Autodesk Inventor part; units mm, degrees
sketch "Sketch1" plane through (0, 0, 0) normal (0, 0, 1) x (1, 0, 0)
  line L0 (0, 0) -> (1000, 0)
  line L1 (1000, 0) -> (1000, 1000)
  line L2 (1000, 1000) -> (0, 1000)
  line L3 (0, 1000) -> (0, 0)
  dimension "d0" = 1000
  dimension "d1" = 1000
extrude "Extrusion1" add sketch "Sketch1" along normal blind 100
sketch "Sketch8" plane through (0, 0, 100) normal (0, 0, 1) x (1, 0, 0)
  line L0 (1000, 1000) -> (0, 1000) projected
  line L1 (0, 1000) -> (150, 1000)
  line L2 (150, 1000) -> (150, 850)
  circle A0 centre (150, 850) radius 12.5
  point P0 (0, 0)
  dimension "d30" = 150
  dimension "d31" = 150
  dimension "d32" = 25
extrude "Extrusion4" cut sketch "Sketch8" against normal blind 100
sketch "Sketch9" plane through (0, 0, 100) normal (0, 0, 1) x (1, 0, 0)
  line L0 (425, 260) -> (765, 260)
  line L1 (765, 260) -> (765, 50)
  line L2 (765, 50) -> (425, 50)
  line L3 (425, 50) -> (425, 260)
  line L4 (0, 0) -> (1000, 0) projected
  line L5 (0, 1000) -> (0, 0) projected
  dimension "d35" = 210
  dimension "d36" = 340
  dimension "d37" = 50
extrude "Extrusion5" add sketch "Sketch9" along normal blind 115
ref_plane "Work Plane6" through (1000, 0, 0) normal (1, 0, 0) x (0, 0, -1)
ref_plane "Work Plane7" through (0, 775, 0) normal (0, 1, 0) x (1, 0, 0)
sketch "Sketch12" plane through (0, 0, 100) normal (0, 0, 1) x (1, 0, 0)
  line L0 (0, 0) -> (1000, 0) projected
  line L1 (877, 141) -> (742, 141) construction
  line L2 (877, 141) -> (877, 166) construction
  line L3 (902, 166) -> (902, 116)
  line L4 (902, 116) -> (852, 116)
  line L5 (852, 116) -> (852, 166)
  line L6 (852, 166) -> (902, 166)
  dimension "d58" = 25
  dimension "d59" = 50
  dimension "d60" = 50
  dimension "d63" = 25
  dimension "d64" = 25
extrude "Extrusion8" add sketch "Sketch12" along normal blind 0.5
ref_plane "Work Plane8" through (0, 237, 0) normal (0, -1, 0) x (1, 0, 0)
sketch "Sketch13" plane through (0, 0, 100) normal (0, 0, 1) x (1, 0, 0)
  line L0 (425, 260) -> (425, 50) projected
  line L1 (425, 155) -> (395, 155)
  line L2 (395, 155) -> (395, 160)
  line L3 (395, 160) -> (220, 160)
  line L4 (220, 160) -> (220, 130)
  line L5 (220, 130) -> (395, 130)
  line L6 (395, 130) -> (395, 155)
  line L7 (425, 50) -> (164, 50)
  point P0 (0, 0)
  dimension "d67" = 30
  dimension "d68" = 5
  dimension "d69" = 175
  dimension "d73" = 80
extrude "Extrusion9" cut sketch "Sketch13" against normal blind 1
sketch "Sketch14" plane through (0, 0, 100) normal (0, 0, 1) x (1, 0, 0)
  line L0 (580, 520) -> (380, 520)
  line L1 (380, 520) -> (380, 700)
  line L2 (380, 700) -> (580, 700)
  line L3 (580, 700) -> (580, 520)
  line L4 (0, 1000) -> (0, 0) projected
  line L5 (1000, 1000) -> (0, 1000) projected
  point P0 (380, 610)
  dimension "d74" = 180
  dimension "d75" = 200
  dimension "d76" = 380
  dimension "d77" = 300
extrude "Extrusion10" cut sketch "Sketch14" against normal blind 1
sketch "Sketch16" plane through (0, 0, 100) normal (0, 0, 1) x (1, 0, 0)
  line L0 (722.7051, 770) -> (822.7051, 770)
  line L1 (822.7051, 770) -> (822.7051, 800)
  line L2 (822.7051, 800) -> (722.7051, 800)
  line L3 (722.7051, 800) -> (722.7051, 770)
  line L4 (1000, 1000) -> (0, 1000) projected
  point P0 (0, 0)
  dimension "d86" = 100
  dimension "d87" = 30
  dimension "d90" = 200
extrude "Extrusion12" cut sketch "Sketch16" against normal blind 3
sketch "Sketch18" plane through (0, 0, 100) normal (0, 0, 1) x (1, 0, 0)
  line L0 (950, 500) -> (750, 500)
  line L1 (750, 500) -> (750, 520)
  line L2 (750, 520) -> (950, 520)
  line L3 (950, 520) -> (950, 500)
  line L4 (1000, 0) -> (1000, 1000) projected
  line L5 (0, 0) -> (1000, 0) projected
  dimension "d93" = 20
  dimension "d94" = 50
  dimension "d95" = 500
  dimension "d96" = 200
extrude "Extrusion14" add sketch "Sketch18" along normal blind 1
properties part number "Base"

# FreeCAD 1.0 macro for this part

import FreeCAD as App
import Part
import Sketcher
from FreeCAD import Vector
Q = App.Units.Quantity


def add_polygon(sketch, points):
    """Adds a closed chain of lines whose ends are joined by coincident constraints."""
    first, n = sketch.GeometryCount, len(points)
    for a, b in zip(points, points[1:] + points[:1]):
        sketch.addGeometry(Part.LineSegment(App.Vector(*a, 0), App.Vector(*b, 0)), False)
    for i in range(n):
        sketch.addConstraint(Sketcher.Constraint("Coincident", first + i, 2, first + (i + 1) % n, 1))

doc = App.newDocument("Part")
body = doc.addObject("PartDesign::Body", "Body")

sketch1 = body.newObject("Sketcher::SketchObject", "Sketch")
sketch1.AttachmentSupport = (doc.getObject("XY_Plane"), [""])
sketch1.MapMode = "FlatFace"
add_polygon(sketch1, [(0, 1000), (0, 0), (1000, 0), (1000, 1000)])
sketch1.addConstraint(Sketcher.Constraint("Vertical", 0))
sketch1.addConstraint(Sketcher.Constraint("Horizontal", 1))
sketch1.addConstraint(Sketcher.Constraint("Vertical", 2))
sketch1.addConstraint(Sketcher.Constraint("Horizontal", 3))
sketch1.addConstraint(Sketcher.Constraint("Coincident", 0, 2, -1, 1))
sketch1.addConstraint(Sketcher.Constraint("Equal", 3, 0))
sketch1.addConstraint(Sketcher.Constraint("DistanceX", 1, 1, 1, 2, Q("1000 mm")))
pad1 = body.newObject("PartDesign::Pad", "Pad")
pad1.Profile = sketch1
pad1.Length = 100

sketch2 = body.newObject("Sketcher::SketchObject", "Sketch001")
sketch2.AttachmentSupport = (doc.getObject("XY_Plane"), [""])
sketch2.MapMode = "FlatFace"
sketch2.AttachmentOffset = App.Placement(Vector(0, 0, 100), App.Rotation())
sketch2.addGeometry(Part.Circle(Vector(150, 850, 0), Vector(0, 0, 1), 12), False)
sketch2.addConstraint(Sketcher.Constraint("Diameter", 0, Q("25 mm")))
sketch2.addConstraint(Sketcher.Constraint("DistanceX", -1, 1, 0, 3, Q("150 mm")))
sketch2.addConstraint(Sketcher.Constraint("DistanceY", -1, 1, 0, 3, Q("850 mm")))
pocket1 = body.newObject("PartDesign::Pocket", "Pocket")
pocket1.Profile = sketch2
pocket1.Length = 100

sketch3 = body.newObject("Sketcher::SketchObject", "Sketch002")
sketch3.AttachmentSupport = (doc.getObject("XY_Plane"), [""])
sketch3.MapMode = "FlatFace"
sketch3.AttachmentOffset = App.Placement(Vector(0, 0, 100), App.Rotation())
add_polygon(sketch3, [(765, 260), (425, 260), (425, 50), (765, 50)])
sketch3.addConstraint(Sketcher.Constraint("Horizontal", 0))
sketch3.addConstraint(Sketcher.Constraint("Vertical", 1))
sketch3.addConstraint(Sketcher.Constraint("Horizontal", 2))
sketch3.addConstraint(Sketcher.Constraint("Vertical", 3))
sketch3.addConstraint(Sketcher.Constraint("DistanceX", 0, 2, 0, 1, Q("340 mm")))
sketch3.addConstraint(Sketcher.Constraint("DistanceY", 1, 2, 1, 1, Q("210 mm")))
sketch3.addConstraint(Sketcher.Constraint("DistanceY", -1, 1, 1, 2, Q("50 mm")))
sketch3.addConstraint(Sketcher.Constraint("DistanceX", -1, 1, 0, 2, Q("425 mm")))
pad2 = body.newObject("PartDesign::Pad", "Pad001")
pad2.Profile = sketch3
pad2.Length = 115

sketch4 = body.newObject("Sketcher::SketchObject", "Sketch003")
sketch4.AttachmentSupport = (doc.getObject("XY_Plane"), [""])
sketch4.MapMode = "FlatFace"
sketch4.AttachmentOffset = App.Placement(Vector(0, 0, 100), App.Rotation())
add_polygon(sketch4, [(902, 116), (902, 166), (852, 166), (852, 116)])
sketch4.addConstraint(Sketcher.Constraint("Vertical", 0))
sketch4.addConstraint(Sketcher.Constraint("Horizontal", 1))
sketch4.addConstraint(Sketcher.Constraint("Vertical", 2))
sketch4.addConstraint(Sketcher.Constraint("Horizontal", 3))
sketch4.addConstraint(Sketcher.Constraint("Equal", 3, 0))
sketch4.addConstraint(Sketcher.Constraint("DistanceX", 1, 2, 1, 1, Q("50 mm")))
sketch4.addConstraint(Sketcher.Constraint("DistanceX", -1, 1, 0, 2, Q("902 mm")))
sketch4.addConstraint(Sketcher.Constraint("DistanceY", -1, 1, 0, 2, Q("166 mm")))
pad3 = body.newObject("PartDesign::Pad", "Pad002")
pad3.Profile = sketch4
pad3.Length = 0.5

sketch5 = body.newObject("Sketcher::SketchObject", "Sketch004")
sketch5.AttachmentSupport = (doc.getObject("XY_Plane"), [""])
sketch5.MapMode = "FlatFace"
sketch5.AttachmentOffset = App.Placement(Vector(0, 0, 100), App.Rotation())
add_polygon(sketch5, [(395, 130), (395, 160), (220, 160), (220, 130)])
sketch5.addConstraint(Sketcher.Constraint("Vertical", 0))
sketch5.addConstraint(Sketcher.Constraint("Horizontal", 1))
sketch5.addConstraint(Sketcher.Constraint("Vertical", 2))
sketch5.addConstraint(Sketcher.Constraint("Horizontal", 3))
sketch5.addConstraint(Sketcher.Constraint("DistanceX", 1, 2, 1, 1, Q("175 mm")))
sketch5.addConstraint(Sketcher.Constraint("DistanceY", 0, 1, 0, 2, Q("30 mm")))
sketch5.addConstraint(Sketcher.Constraint("DistanceX", -1, 1, 0, 2, Q("395 mm")))
sketch5.addConstraint(Sketcher.Constraint("DistanceY", -1, 1, 0, 2, Q("160 mm")))
pocket2 = body.newObject("PartDesign::Pocket", "Pocket001")
pocket2.Profile = sketch5
pocket2.Length = 1

sketch6 = body.newObject("Sketcher::SketchObject", "Sketch005")
sketch6.AttachmentSupport = (doc.getObject("XY_Plane"), [""])
sketch6.MapMode = "FlatFace"
sketch6.AttachmentOffset = App.Placement(Vector(0, 0, 100), App.Rotation())
add_polygon(sketch6, [(380, 520), (580, 520), (580, 700), (380, 700)])
sketch6.addConstraint(Sketcher.Constraint("Horizontal", 0))
sketch6.addConstraint(Sketcher.Constraint("Vertical", 1))
sketch6.addConstraint(Sketcher.Constraint("Horizontal", 2))
sketch6.addConstraint(Sketcher.Constraint("Vertical", 3))
sketch6.addConstraint(Sketcher.Constraint("DistanceX", 0, 1, 0, 2, Q("200 mm")))
sketch6.addConstraint(Sketcher.Constraint("DistanceY", 1, 1, 1, 2, Q("180 mm")))
sketch6.addConstraint(Sketcher.Constraint("DistanceX", -1, 1, 2, 2, Q("380 mm")))
sketch6.addConstraint(Sketcher.Constraint("DistanceY", -1, 1, 0, 2, Q("520 mm")))
pocket3 = body.newObject("PartDesign::Pocket", "Pocket002")
pocket3.Profile = sketch6
pocket3.Length = 1

sketch7 = body.newObject("Sketcher::SketchObject", "Sketch006")
sketch7.AttachmentSupport = (doc.getObject("XY_Plane"), [""])
sketch7.MapMode = "FlatFace"
sketch7.AttachmentOffset = App.Placement(Vector(0, 0, 100), App.Rotation())
add_polygon(sketch7, [(723, 800), (723, 770), (823, 770), (823, 800)])
sketch7.addConstraint(Sketcher.Constraint("Vertical", 0))
sketch7.addConstraint(Sketcher.Constraint("Horizontal", 1))
sketch7.addConstraint(Sketcher.Constraint("Vertical", 2))
sketch7.addConstraint(Sketcher.Constraint("Horizontal", 3))
sketch7.addConstraint(Sketcher.Constraint("DistanceX", 1, 1, 1, 2, Q("100 mm")))
sketch7.addConstraint(Sketcher.Constraint("DistanceY", 0, 2, 0, 1, Q("30 mm")))
sketch7.addConstraint(Sketcher.Constraint("DistanceY", -1, 1, 0, 2, Q("770 mm")))
sketch7.addConstraint(Sketcher.Constraint("DistanceX", -1, 1, 0, 2, Q("722.705 mm")))
pocket4 = body.newObject("PartDesign::Pocket", "Pocket003")
pocket4.Profile = sketch7
pocket4.Length = 3

sketch8 = body.newObject("Sketcher::SketchObject", "Sketch007")
sketch8.AttachmentSupport = (doc.getObject("XY_Plane"), [""])
sketch8.MapMode = "FlatFace"
sketch8.AttachmentOffset = App.Placement(Vector(0, 0, 100), App.Rotation())
add_polygon(sketch8, [(750, 500), (950, 500), (950, 520), (750, 520)])
sketch8.addConstraint(Sketcher.Constraint("Horizontal", 0))
sketch8.addConstraint(Sketcher.Constraint("Vertical", 1))
sketch8.addConstraint(Sketcher.Constraint("Horizontal", 2))
sketch8.addConstraint(Sketcher.Constraint("Vertical", 3))
sketch8.addConstraint(Sketcher.Constraint("DistanceX", 0, 1, 0, 2, Q("200 mm")))
sketch8.addConstraint(Sketcher.Constraint("DistanceY", 1, 1, 1, 2, Q("20 mm")))
sketch8.addConstraint(Sketcher.Constraint("DistanceY", -1, 1, 0, 2, Q("500 mm")))
sketch8.addConstraint(Sketcher.Constraint("DistanceX", -1, 1, 0, 2, Q("950 mm")))
pad4 = body.newObject("PartDesign::Pad", "Pad003")
pad4.Profile = sketch8
pad4.Length = 1

doc.recompute()
